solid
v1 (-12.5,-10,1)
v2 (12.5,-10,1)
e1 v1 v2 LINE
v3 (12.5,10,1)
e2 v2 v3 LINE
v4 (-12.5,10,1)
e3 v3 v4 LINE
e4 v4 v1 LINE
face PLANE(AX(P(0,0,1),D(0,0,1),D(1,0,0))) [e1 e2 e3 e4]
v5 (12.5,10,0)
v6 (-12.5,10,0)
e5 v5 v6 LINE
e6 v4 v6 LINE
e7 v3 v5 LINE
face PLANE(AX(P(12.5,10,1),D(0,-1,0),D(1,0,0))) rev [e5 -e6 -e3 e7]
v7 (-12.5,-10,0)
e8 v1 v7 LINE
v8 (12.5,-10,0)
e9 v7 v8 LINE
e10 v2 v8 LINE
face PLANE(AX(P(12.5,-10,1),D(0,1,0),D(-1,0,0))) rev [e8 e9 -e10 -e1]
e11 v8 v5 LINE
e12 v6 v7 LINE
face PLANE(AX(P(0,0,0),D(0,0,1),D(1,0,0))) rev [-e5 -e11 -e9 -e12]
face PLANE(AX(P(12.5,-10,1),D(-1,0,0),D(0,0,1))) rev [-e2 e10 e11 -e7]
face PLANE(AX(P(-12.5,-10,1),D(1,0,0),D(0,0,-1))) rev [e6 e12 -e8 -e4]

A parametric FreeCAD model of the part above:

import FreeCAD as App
import Part
import Sketcher
from FreeCAD import Vector

doc = App.newDocument("Part")
body = doc.addObject("PartDesign::Body", "Body")

sketch1 = body.newObject("Sketcher::SketchObject", "Sketch")
sketch1.AttachmentSupport = (doc.getObject("XY_Plane"), [""])
sketch1.MapMode = "FlatFace"
sketch1.addGeometry([
    Part.LineSegment(Vector(-12.5, 10, 0), Vector(-12.5, -10, 0)),
    Part.LineSegment(Vector(-12.5, -10, 0), Vector(12.5, -10, 0)),
    Part.LineSegment(Vector(12.5, -10, 0), Vector(12.5, 10, 0)),
    Part.LineSegment(Vector(12.5, 10, 0), Vector(-12.5, 10, 0)),
], False)
sketch1.addConstraint([
    Sketcher.Constraint("Coincident", 0, 2, 1, 1),
    Sketcher.Constraint("Coincident", 1, 2, 2, 1),
    Sketcher.Constraint("Coincident", 2, 2, 3, 1),
    Sketcher.Constraint("Coincident", 3, 2, 0, 1),
    Sketcher.Constraint("Vertical", 0),
    Sketcher.Constraint("Horizontal", 1),
    Sketcher.Constraint("Vertical", 2),
    Sketcher.Constraint("Horizontal", 3),
    Sketcher.Constraint("Symmetric", 0, 2, 2, 2, -1, 1),
    Sketcher.Constraint("DistanceX", 1, 1, 1, 2, 25.0),
    Sketcher.Constraint("DistanceY", 0, 2, 0, 1, 20.0),
])
pad1 = body.newObject("PartDesign::Pad", "Pad")
pad1.Profile = sketch1
pad1.Length = 1

doc.recompute()
